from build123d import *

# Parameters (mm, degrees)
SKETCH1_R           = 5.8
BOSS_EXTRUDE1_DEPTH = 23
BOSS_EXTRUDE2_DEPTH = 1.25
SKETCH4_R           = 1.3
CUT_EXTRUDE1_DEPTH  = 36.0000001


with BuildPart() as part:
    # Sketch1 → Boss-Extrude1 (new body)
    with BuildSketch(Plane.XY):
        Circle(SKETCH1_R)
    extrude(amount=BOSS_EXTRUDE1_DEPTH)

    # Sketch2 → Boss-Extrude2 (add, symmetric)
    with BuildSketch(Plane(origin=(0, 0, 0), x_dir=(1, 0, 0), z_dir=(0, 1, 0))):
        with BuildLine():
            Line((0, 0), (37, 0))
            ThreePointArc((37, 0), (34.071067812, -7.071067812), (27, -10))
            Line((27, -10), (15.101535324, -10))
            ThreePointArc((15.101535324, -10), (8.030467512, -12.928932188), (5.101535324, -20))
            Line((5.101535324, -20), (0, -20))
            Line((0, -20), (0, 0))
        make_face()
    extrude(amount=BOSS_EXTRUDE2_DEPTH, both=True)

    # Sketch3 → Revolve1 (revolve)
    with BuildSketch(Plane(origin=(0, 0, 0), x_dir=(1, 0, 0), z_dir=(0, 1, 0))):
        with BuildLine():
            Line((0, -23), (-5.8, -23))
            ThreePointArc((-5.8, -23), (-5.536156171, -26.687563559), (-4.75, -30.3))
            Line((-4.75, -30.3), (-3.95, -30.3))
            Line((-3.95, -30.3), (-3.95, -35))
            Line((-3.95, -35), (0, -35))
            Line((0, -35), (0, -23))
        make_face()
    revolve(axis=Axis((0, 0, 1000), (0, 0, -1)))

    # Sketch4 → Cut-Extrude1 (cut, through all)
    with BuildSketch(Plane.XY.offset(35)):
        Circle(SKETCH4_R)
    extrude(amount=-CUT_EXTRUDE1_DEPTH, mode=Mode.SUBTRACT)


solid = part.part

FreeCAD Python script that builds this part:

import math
import FreeCAD as App
import Part
import Sketcher

V = App.Vector

doc = App.newDocument("Part")
body = doc.addObject("PartDesign::Body", "Body")

# Sketch on XY plane
sketch1 = doc.addObject("Sketcher::SketchObject", "Sketch")
body.addObject(sketch1)
sketch1.AttachmentSupport = (doc.XY_Plane, [""])
sketch1.MapMode = "FlatFace"
sketch1.addGeometry(Part.Circle(V(0, 0, 0), V(0, 0, 1), 6), False)
sketch1.addConstraint([
    Sketcher.Constraint("Coincident", 0, 3, -1, 1),
    Sketcher.Constraint("Diameter", 0, 11.6),
])
pad1 = doc.addObject("PartDesign::Pad", "Pad")
body.addObject(pad1)
pad1.Profile = sketch1
pad1.Length = 23

# Sketch on XZ plane
sketch2 = doc.addObject("Sketcher::SketchObject", "Sketch001")
body.addObject(sketch2)
sketch2.AttachmentSupport = (doc.XZ_Plane, [""])
sketch2.MapMode = "FlatFace"
sketch2.addGeometry([
    Part.LineSegment(V(37, 0, 0), V(0, 0, 0)),  # 0
    Part.LineSegment(V(0, 0, 0), V(0, 20, 0)),  # 1
    Part.LineSegment(V(0, 20, 0), V(5, 20, 0)),  # 2
    Part.ArcOfCircle(Part.Circle(V(15, 20, 0), V(0, 0, 1), 10), math.radians(180), math.radians(270)),  # 3
    Part.LineSegment(V(15, 10, 0), V(27, 10, 0)),  # 4
    Part.ArcOfCircle(Part.Circle(V(27, 0, 0), V(0, 0, 1), 10), math.radians(0), math.radians(90)),  # 5
], False)
sketch2.addConstraint([
    Sketcher.Constraint("Coincident", 0, 2, 1, 1),
    Sketcher.Constraint("Coincident", 1, 2, 2, 1),
    Sketcher.Constraint("Coincident", 2, 2, 3, 1),
    Sketcher.Constraint("Tangent", 3, 2, 4, 1),
    Sketcher.Constraint("Tangent", 4, 2, 5, 2),
    Sketcher.Constraint("Coincident", 5, 1, 0, 1),
    Sketcher.Constraint("Horizontal", 0),
    Sketcher.Constraint("Vertical", 1),
    Sketcher.Constraint("Horizontal", 2),
    Sketcher.Constraint("Horizontal", 4),
    Sketcher.Constraint("Coincident", 0, 2, -1, 1),
    Sketcher.Constraint("Equal", 3, 5),
    Sketcher.Constraint("PointOnObject", 5, 3, -1),
    Sketcher.Constraint("Horizontal", 3, 3, 1, 2),
    Sketcher.Constraint("Radius", 3, 10.0),
    Sketcher.Constraint("DistanceX", 0, 2, 0, 1, 37.0),
    Sketcher.Constraint("DistanceX", 2, 1, 2, 2, 5.101535),
])
pad2 = doc.addObject("PartDesign::Pad", "Pad001")
body.addObject(pad2)
pad2.Profile = sketch2
pad2.Length = 2.5
pad2.Midplane = True

# Sketch on XZ plane
sketch3 = doc.addObject("Sketcher::SketchObject", "Sketch002")
body.addObject(sketch3)
sketch3.AttachmentSupport = (doc.XZ_Plane, [""])
sketch3.MapMode = "FlatFace"
sketch3.addGeometry([
    Part.LineSegment(V(0, 23, 0), V(-5.8, 23, 0)),  # 0
    Part.ArcOfCircle(Part.Circle(V(20.1, 23, 0), V(0, 0, 1), 25.9), math.radians(163.63), math.radians(180)),  # 1
    Part.LineSegment(V(-4.8, 30.3, 0), V(-4, 30.3, 0)),  # 2
    Part.LineSegment(V(-4, 30.3, 0), V(-4, 35, 0)),  # 3
    Part.LineSegment(V(-4, 35, 0), V(0, 35, 0)),  # 4
    Part.LineSegment(V(0, 35, 0), V(0, 23, 0)),  # 5
], False)
sketch3.addConstraint([
    Sketcher.Constraint("Coincident", 0, 2, 1, 2),
    Sketcher.Constraint("Coincident", 1, 1, 2, 1),
    Sketcher.Constraint("Coincident", 2, 2, 3, 1),
    Sketcher.Constraint("Coincident", 3, 2, 4, 1),
    Sketcher.Constraint("Coincident", 4, 2, 5, 1),
    Sketcher.Constraint("Coincident", 5, 2, 0, 1),
    Sketcher.Constraint("Horizontal", 0),
    Sketcher.Constraint("Horizontal", 2),
    Sketcher.Constraint("Vertical", 3),
    Sketcher.Constraint("Horizontal", 4),
    Sketcher.Constraint("Vertical", 5),
    Sketcher.Constraint("PointOnObject", 4, 2, -2),
    Sketcher.Constraint("Horizontal", 1, 3, 0, 2),
    Sketcher.Constraint("DistanceY", 5, 2, 5, 1, 12.0),
    Sketcher.Constraint("DistanceX", 0, 2, 0, 1, 5.8),
    Sketcher.Constraint("DistanceX", 2, 1, 2, 2, 0.8),
    Sketcher.Constraint("DistanceY", 3, 1, 3, 2, 4.7),
    Sketcher.Constraint("DistanceY", -1, 1, 1, 3, 23.0),
    Sketcher.Constraint("DistanceX", 4, 1, 4, 2, 3.95),
])
revolution = doc.addObject("PartDesign::Revolution", "Revolution")
body.addObject(revolution)
revolution.Profile = sketch3
revolution.ReferenceAxis = (sketch3, ["V_Axis"])
revolution.Angle = 360

# Sketch on XY plane
sketch4 = doc.addObject("Sketcher::SketchObject", "Sketch003")
body.addObject(sketch4)
sketch4.AttachmentSupport = (doc.XY_Plane, [""])
sketch4.MapMode = "FlatFace"
sketch4.AttachmentOffset = App.Placement(V(0, 0, 35), App.Rotation())
sketch4.addGeometry(Part.Circle(V(0, 0, 0), V(0, 0, 1), 1.3), False)
sketch4.addConstraint([
    Sketcher.Constraint("Coincident", 0, 3, -1, 1),
    Sketcher.Constraint("Diameter", 0, 2.6),
])
pocket1 = doc.addObject("PartDesign::Pocket", "Pocket")
body.addObject(pocket1)
pocket1.Profile = sketch4
pocket1.Type = "ThroughAll"

doc.recompute()
